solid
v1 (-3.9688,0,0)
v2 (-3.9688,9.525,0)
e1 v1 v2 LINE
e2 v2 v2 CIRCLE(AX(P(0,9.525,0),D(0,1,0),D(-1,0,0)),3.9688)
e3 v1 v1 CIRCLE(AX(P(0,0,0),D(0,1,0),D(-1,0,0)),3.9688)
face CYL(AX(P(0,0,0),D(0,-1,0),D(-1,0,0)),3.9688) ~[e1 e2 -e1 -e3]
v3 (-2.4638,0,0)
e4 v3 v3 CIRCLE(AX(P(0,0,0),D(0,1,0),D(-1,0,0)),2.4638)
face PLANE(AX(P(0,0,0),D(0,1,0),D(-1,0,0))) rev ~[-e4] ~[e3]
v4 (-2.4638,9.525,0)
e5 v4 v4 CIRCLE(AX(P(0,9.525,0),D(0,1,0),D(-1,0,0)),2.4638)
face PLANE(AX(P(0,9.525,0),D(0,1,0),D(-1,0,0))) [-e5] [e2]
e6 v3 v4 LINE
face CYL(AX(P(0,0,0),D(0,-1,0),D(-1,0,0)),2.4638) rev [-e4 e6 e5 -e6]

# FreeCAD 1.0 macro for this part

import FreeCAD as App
import Part
import Sketcher
from FreeCAD import Vector
Q = App.Units.Quantity

doc = App.newDocument("Part")
body = doc.addObject("PartDesign::Body", "Body")

# Sketch on XZ plane
sketch1 = body.newObject("Sketcher::SketchObject", "Sketch")
sketch1.AttachmentSupport = (doc.getObject("XZ_Plane"), [""])
sketch1.MapMode = "FlatFace"
sketch1.addGeometry([
    Part.Circle(Vector(0, 0, 0), Vector(0, 0, 1), 4),
    Part.Circle(Vector(0, 0, 0), Vector(0, 0, 1), 2.5),
], False)
sketch1.addConstraint([
    Sketcher.Constraint("Coincident", 0, 3, -1, 1),
    Sketcher.Constraint("Coincident", 1, 3, -1, 1),
    Sketcher.Constraint("Diameter", 0, Q("0.3125 in")),
    Sketcher.Constraint("Diameter", 1, Q("0.194 in")),
])
pad1 = body.newObject("PartDesign::Pad", "Pad")
pad1.Profile = sketch1
pad1.Length = Q("0.375 in")
pad1.Reversed = True

doc.recompute()
